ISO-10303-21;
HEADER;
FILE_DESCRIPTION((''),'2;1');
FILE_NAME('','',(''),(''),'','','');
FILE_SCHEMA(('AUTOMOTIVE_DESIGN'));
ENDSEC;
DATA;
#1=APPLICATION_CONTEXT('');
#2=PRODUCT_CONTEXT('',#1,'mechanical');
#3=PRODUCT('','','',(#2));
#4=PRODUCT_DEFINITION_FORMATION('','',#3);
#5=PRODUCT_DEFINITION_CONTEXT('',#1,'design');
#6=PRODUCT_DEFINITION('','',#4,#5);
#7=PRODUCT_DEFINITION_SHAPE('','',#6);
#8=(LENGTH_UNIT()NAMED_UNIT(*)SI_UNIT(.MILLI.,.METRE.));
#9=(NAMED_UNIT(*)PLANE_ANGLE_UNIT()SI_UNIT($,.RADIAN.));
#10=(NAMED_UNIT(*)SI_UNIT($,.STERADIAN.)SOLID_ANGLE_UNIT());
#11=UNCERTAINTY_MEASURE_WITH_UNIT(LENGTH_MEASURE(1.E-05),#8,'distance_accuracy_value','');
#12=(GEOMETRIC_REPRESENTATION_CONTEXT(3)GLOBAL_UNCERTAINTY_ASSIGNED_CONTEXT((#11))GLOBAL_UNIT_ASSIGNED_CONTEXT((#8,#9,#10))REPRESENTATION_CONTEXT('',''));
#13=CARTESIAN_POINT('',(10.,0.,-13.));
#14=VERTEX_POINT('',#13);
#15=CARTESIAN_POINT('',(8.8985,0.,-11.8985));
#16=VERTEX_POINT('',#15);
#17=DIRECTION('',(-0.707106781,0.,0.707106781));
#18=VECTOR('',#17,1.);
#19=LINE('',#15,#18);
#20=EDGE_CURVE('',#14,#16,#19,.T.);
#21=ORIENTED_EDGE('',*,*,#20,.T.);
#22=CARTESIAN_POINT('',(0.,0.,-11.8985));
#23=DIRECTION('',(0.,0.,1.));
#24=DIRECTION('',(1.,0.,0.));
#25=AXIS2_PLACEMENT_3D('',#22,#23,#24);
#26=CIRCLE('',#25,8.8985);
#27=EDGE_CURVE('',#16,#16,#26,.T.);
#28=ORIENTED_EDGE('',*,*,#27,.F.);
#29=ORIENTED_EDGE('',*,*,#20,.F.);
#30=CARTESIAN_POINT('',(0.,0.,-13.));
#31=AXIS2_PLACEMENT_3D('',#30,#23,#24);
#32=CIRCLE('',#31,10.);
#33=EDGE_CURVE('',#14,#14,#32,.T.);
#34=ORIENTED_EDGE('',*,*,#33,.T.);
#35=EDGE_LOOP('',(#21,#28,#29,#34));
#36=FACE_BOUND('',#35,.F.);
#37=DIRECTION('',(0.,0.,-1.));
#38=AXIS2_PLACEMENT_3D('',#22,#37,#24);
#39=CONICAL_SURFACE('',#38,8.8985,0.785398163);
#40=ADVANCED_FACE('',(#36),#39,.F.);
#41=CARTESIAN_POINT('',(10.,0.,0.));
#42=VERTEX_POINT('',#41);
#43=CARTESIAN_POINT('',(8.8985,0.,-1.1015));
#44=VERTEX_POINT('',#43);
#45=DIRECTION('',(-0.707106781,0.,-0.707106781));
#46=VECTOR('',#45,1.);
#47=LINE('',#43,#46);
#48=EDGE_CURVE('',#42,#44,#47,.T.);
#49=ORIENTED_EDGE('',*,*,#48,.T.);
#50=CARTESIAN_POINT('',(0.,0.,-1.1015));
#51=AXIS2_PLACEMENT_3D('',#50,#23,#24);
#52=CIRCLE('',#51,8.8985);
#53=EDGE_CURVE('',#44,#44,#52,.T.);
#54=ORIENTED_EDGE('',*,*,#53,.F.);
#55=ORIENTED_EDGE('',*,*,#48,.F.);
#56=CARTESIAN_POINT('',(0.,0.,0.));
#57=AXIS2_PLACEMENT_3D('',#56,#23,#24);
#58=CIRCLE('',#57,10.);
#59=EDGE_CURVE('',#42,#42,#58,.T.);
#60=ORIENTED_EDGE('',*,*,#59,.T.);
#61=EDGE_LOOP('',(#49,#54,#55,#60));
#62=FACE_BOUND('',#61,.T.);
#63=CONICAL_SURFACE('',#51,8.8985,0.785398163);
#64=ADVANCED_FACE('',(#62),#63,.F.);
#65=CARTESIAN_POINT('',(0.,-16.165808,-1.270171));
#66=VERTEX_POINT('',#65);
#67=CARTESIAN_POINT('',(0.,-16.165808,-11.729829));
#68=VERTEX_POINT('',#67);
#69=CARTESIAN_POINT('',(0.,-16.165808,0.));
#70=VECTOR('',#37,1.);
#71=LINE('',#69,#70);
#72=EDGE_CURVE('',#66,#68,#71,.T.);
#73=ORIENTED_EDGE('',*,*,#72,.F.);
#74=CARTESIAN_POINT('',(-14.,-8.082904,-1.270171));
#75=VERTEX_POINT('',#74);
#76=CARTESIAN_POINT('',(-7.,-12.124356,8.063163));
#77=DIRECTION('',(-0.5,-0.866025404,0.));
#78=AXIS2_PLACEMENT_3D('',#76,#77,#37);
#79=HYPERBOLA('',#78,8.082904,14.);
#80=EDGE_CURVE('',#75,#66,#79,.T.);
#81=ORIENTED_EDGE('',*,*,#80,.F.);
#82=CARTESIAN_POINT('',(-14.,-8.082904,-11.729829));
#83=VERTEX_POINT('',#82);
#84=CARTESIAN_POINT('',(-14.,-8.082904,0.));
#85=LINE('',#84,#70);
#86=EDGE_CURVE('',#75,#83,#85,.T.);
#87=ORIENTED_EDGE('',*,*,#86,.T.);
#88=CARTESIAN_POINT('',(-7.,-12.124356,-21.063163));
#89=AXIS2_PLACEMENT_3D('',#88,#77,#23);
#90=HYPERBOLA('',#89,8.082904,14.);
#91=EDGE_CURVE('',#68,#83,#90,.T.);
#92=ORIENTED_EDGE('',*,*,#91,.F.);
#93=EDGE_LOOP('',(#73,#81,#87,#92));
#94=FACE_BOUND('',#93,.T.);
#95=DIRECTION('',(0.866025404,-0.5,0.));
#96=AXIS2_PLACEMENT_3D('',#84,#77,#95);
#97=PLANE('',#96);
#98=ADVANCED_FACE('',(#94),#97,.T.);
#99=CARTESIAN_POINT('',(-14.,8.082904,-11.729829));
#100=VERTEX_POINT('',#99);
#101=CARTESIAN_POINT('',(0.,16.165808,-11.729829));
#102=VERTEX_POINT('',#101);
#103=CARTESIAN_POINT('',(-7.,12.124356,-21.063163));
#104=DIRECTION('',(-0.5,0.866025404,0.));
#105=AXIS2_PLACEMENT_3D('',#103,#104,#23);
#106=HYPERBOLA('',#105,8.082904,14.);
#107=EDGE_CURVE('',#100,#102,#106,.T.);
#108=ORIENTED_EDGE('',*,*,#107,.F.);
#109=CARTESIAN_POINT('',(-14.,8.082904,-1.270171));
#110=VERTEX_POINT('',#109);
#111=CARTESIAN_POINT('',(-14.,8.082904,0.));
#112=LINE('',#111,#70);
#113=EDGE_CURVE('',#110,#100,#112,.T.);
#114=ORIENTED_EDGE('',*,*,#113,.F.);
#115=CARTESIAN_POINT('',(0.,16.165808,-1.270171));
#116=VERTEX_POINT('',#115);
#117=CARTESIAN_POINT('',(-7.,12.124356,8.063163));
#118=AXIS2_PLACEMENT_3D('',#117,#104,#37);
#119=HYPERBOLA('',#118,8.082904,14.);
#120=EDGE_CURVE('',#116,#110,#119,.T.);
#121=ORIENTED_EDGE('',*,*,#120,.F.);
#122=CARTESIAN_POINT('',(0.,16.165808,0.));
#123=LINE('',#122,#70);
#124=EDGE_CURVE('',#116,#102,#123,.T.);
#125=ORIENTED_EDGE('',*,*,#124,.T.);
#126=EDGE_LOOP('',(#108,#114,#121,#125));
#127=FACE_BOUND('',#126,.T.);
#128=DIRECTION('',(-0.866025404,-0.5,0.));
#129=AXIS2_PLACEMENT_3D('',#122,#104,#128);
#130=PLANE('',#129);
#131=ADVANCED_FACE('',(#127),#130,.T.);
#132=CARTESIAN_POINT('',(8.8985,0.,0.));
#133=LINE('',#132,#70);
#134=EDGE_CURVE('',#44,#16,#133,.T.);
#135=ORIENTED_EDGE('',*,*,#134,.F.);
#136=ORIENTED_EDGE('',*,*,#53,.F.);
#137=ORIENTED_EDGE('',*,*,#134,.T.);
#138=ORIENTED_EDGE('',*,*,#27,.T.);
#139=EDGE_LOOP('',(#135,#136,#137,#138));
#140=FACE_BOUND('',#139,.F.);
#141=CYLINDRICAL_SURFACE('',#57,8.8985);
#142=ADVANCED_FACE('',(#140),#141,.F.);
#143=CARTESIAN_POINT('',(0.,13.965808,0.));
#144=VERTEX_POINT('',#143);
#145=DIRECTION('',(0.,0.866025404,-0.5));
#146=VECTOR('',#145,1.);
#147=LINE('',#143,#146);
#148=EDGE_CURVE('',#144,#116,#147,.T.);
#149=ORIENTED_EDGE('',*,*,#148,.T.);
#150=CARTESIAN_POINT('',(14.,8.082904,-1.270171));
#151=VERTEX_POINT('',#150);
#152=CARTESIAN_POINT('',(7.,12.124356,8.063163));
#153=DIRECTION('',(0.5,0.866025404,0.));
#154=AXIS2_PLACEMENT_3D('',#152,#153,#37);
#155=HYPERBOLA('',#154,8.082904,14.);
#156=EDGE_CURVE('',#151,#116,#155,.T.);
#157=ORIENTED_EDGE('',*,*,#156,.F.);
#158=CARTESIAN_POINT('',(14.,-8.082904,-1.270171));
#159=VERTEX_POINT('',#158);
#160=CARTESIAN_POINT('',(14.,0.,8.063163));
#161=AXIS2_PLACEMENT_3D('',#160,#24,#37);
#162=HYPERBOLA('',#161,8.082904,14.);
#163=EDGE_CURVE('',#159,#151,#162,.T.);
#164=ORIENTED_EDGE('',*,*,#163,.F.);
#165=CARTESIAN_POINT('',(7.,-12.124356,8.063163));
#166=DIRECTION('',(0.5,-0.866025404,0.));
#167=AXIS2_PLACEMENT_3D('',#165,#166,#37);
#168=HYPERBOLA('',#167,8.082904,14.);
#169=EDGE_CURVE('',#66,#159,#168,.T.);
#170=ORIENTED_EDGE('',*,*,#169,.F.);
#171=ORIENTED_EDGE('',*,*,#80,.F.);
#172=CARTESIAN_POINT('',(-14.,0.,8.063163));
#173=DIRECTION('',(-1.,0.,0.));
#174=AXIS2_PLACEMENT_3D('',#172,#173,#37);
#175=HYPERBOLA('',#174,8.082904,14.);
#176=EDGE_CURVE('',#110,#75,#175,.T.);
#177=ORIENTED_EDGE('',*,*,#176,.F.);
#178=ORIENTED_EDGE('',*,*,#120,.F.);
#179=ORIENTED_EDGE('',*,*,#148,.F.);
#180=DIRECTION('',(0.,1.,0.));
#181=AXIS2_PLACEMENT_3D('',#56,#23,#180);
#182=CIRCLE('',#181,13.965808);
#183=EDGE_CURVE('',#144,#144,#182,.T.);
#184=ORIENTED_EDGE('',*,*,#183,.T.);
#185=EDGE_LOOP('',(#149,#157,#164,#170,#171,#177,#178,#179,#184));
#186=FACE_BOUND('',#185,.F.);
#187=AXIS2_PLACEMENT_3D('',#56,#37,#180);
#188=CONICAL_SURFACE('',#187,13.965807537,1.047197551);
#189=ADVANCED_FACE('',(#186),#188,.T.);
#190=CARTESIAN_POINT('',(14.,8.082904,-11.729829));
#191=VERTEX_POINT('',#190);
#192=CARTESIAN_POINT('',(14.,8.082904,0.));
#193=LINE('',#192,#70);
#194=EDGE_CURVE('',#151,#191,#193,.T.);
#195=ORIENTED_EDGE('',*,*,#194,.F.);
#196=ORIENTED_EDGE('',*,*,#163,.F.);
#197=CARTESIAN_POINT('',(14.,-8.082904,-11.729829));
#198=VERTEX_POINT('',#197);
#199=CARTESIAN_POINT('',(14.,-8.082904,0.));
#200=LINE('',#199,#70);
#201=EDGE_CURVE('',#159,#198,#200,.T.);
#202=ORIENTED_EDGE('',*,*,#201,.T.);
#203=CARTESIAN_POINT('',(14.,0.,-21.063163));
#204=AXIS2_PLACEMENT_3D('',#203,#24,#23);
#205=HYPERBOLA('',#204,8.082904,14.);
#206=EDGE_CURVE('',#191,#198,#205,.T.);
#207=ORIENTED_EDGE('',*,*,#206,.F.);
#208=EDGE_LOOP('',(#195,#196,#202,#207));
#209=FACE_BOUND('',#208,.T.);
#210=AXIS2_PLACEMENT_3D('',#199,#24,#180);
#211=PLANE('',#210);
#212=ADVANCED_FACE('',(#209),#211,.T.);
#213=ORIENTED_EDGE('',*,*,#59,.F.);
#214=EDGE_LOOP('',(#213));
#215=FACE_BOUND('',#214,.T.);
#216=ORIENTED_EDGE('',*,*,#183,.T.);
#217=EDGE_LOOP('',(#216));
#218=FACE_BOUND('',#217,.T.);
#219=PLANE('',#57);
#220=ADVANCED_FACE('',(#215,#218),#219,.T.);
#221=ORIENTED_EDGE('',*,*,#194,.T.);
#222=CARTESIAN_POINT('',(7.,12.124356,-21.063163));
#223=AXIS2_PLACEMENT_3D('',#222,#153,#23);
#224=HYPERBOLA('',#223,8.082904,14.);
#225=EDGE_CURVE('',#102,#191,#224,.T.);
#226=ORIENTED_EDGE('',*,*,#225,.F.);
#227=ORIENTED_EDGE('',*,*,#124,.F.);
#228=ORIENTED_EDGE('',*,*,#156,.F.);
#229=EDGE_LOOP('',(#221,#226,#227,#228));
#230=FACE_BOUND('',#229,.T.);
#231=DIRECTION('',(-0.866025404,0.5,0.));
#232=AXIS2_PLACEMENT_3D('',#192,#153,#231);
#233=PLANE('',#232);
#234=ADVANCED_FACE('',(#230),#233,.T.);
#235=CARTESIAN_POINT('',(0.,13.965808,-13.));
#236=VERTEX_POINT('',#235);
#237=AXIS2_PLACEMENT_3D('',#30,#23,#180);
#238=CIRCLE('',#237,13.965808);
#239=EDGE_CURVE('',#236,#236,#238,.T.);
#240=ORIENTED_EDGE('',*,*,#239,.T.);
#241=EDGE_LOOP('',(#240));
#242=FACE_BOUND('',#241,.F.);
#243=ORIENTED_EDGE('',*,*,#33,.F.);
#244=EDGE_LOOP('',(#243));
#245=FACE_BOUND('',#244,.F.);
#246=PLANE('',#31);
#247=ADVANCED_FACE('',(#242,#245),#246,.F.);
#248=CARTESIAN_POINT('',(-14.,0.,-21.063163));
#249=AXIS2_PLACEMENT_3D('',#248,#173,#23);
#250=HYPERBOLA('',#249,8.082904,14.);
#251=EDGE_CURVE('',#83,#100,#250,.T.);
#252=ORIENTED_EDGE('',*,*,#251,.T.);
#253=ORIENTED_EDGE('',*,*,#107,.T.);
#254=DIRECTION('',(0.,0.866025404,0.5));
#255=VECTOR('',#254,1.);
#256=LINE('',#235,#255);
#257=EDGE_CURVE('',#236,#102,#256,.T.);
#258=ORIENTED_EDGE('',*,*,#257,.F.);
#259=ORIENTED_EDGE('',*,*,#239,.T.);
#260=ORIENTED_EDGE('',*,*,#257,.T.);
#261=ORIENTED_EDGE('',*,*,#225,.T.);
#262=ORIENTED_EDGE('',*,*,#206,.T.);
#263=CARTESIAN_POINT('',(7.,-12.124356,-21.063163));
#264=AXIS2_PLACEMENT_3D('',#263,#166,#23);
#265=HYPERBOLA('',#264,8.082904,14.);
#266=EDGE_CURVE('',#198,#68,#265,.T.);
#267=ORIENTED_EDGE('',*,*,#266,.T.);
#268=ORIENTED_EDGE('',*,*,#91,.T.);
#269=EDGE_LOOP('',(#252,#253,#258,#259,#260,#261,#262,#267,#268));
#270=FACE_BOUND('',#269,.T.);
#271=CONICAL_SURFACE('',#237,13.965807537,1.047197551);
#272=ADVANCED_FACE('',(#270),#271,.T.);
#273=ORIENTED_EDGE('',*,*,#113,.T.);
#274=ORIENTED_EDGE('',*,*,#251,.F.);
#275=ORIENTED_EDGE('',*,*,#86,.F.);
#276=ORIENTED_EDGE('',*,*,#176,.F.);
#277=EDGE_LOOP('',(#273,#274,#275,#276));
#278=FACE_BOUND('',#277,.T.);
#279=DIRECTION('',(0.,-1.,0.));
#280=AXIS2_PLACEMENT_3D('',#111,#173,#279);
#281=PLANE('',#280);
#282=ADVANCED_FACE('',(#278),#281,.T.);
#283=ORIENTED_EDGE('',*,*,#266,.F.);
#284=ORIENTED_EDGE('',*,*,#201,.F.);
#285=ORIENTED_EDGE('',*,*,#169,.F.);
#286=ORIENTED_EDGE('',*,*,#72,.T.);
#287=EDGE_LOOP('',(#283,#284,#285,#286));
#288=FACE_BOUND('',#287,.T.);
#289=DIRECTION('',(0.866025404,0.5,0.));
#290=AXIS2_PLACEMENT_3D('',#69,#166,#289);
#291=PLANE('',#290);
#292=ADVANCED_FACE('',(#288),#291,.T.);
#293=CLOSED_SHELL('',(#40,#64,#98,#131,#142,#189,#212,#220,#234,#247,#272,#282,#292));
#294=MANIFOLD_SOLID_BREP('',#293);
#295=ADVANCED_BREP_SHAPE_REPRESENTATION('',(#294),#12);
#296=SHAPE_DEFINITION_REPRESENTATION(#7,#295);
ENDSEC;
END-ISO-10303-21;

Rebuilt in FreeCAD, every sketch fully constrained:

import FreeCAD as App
import Part
import Sketcher
Q = App.Units.Quantity


def edges_at(feature, points):
    """Names of the edges that pass closest to the given points."""
    edges = feature.Shape.Edges
    near = lambda p: min(range(len(edges)), key=lambda i: edges[i].distToShape(Part.Vertex(*p))[0])
    return sorted({f"Edge{near(p) + 1}" for p in points})


def add_polygon(sketch, points):
    """Adds a closed chain of lines whose ends are joined by coincident constraints."""
    first, n = sketch.GeometryCount, len(points)
    for a, b in zip(points, points[1:] + points[:1]):
        sketch.addGeometry(Part.LineSegment(App.Vector(*a, 0), App.Vector(*b, 0)), False)
    for i in range(n):
        sketch.addConstraint(Sketcher.Constraint("Coincident", first + i, 2, first + (i + 1) % n, 1))

doc = App.newDocument("Part")
body = doc.addObject("PartDesign::Body", "Body")

# Sketch on XY plane
sketch1 = body.newObject("Sketcher::SketchObject", "Sketch")
sketch1.AttachmentSupport = (doc.getObject("XY_Plane"), [""])
sketch1.MapMode = "FlatFace"
add_polygon(sketch1, [(0, 16), (-14, 8), (-14, -8), (0, -16), (14, -8), (14, 8)])  # lines 0-5
sketch1.addGeometry(Part.Circle(App.Vector(0, 0, 0), App.Vector(0, 0, 1), 9), False)  # 6
sketch1.addConstraint([
    Sketcher.Constraint("Vertical", 1),
    Sketcher.Constraint("Vertical", 4),
    Sketcher.Constraint("Coincident", 6, 3, -1, 1),
    Sketcher.Constraint("Symmetric", 0, 2, 3, 2, -1, 1),
    Sketcher.Constraint("Symmetric", 2, 2, 5, 2, -1, 1),
    Sketcher.Constraint("PointOnObject", 2, 2, -2),
    Sketcher.Constraint("Parallel", 2, 5),
    Sketcher.Constraint("Horizontal", 1, 2, 3, 2),
    Sketcher.Constraint("Angle", 0, Q("-150 deg")),
    Sketcher.Constraint("Diameter", 6, Q("17.797 mm")),
    Sketcher.Constraint("DistanceX", 0, 2, -1, 1, Q("14 mm")),
    Sketcher.Constraint("DistanceY", 1, 2, 1, 1, Q("16.165808 mm")),
])
pad1 = body.newObject("PartDesign::Pad", "Pad")
pad1.Profile = sketch1
pad1.Length = 13
pad1.Reversed = True

# Sketch on YZ plane
sketch2 = body.newObject("Sketcher::SketchObject", "Sketch001")
sketch2.AttachmentSupport = (doc.getObject("YZ_Plane"), [""])
sketch2.MapMode = "FlatFace"
add_polygon(sketch2, [(14, 0), (24, -6), (24, 0)])  # lines 0-2
add_polygon(sketch2, [(14, -13), (24, -13), (24, -7)])  # lines 3-5
sketch2.addConstraint([
    Sketcher.Constraint("Vertical", 1),
    Sketcher.Constraint("Horizontal", 2),
    Sketcher.Constraint("Horizontal", 3),
    Sketcher.Constraint("Vertical", 4),
    Sketcher.Constraint("PointOnObject", 1, 2, -1),
    Sketcher.Constraint("Vertical", 1, 2, 3, 2),
    Sketcher.Constraint("Vertical", 2, 2, 5, 2),
    Sketcher.Constraint("Equal", 1, 4),
    Sketcher.Constraint("DistanceX", 2, 2, 2, 1, Q("10 mm")),
    Sketcher.Constraint("Angle", 0, Q("-30 deg")),
    Sketcher.Constraint("DistanceY", 3, 2, -1, 1, Q("13 mm")),
    Sketcher.Constraint("DistanceX", -1, 1, 0, 2, Q("23.965808 mm")),
])
groove = body.newObject("PartDesign::Groove", "Groove")
groove.Profile = sketch2
groove.ReferenceAxis = (sketch2, ["V_Axis"])
groove.Angle = 360
doc.recompute()

chamfer = body.newObject("PartDesign::Chamfer", "Chamfer")
chamfer.Base = (groove, edges_at(groove, [(-8.899, 0, -13), (-8.899, 0, 0)]))
chamfer.Size = 1.1015

doc.recompute()
